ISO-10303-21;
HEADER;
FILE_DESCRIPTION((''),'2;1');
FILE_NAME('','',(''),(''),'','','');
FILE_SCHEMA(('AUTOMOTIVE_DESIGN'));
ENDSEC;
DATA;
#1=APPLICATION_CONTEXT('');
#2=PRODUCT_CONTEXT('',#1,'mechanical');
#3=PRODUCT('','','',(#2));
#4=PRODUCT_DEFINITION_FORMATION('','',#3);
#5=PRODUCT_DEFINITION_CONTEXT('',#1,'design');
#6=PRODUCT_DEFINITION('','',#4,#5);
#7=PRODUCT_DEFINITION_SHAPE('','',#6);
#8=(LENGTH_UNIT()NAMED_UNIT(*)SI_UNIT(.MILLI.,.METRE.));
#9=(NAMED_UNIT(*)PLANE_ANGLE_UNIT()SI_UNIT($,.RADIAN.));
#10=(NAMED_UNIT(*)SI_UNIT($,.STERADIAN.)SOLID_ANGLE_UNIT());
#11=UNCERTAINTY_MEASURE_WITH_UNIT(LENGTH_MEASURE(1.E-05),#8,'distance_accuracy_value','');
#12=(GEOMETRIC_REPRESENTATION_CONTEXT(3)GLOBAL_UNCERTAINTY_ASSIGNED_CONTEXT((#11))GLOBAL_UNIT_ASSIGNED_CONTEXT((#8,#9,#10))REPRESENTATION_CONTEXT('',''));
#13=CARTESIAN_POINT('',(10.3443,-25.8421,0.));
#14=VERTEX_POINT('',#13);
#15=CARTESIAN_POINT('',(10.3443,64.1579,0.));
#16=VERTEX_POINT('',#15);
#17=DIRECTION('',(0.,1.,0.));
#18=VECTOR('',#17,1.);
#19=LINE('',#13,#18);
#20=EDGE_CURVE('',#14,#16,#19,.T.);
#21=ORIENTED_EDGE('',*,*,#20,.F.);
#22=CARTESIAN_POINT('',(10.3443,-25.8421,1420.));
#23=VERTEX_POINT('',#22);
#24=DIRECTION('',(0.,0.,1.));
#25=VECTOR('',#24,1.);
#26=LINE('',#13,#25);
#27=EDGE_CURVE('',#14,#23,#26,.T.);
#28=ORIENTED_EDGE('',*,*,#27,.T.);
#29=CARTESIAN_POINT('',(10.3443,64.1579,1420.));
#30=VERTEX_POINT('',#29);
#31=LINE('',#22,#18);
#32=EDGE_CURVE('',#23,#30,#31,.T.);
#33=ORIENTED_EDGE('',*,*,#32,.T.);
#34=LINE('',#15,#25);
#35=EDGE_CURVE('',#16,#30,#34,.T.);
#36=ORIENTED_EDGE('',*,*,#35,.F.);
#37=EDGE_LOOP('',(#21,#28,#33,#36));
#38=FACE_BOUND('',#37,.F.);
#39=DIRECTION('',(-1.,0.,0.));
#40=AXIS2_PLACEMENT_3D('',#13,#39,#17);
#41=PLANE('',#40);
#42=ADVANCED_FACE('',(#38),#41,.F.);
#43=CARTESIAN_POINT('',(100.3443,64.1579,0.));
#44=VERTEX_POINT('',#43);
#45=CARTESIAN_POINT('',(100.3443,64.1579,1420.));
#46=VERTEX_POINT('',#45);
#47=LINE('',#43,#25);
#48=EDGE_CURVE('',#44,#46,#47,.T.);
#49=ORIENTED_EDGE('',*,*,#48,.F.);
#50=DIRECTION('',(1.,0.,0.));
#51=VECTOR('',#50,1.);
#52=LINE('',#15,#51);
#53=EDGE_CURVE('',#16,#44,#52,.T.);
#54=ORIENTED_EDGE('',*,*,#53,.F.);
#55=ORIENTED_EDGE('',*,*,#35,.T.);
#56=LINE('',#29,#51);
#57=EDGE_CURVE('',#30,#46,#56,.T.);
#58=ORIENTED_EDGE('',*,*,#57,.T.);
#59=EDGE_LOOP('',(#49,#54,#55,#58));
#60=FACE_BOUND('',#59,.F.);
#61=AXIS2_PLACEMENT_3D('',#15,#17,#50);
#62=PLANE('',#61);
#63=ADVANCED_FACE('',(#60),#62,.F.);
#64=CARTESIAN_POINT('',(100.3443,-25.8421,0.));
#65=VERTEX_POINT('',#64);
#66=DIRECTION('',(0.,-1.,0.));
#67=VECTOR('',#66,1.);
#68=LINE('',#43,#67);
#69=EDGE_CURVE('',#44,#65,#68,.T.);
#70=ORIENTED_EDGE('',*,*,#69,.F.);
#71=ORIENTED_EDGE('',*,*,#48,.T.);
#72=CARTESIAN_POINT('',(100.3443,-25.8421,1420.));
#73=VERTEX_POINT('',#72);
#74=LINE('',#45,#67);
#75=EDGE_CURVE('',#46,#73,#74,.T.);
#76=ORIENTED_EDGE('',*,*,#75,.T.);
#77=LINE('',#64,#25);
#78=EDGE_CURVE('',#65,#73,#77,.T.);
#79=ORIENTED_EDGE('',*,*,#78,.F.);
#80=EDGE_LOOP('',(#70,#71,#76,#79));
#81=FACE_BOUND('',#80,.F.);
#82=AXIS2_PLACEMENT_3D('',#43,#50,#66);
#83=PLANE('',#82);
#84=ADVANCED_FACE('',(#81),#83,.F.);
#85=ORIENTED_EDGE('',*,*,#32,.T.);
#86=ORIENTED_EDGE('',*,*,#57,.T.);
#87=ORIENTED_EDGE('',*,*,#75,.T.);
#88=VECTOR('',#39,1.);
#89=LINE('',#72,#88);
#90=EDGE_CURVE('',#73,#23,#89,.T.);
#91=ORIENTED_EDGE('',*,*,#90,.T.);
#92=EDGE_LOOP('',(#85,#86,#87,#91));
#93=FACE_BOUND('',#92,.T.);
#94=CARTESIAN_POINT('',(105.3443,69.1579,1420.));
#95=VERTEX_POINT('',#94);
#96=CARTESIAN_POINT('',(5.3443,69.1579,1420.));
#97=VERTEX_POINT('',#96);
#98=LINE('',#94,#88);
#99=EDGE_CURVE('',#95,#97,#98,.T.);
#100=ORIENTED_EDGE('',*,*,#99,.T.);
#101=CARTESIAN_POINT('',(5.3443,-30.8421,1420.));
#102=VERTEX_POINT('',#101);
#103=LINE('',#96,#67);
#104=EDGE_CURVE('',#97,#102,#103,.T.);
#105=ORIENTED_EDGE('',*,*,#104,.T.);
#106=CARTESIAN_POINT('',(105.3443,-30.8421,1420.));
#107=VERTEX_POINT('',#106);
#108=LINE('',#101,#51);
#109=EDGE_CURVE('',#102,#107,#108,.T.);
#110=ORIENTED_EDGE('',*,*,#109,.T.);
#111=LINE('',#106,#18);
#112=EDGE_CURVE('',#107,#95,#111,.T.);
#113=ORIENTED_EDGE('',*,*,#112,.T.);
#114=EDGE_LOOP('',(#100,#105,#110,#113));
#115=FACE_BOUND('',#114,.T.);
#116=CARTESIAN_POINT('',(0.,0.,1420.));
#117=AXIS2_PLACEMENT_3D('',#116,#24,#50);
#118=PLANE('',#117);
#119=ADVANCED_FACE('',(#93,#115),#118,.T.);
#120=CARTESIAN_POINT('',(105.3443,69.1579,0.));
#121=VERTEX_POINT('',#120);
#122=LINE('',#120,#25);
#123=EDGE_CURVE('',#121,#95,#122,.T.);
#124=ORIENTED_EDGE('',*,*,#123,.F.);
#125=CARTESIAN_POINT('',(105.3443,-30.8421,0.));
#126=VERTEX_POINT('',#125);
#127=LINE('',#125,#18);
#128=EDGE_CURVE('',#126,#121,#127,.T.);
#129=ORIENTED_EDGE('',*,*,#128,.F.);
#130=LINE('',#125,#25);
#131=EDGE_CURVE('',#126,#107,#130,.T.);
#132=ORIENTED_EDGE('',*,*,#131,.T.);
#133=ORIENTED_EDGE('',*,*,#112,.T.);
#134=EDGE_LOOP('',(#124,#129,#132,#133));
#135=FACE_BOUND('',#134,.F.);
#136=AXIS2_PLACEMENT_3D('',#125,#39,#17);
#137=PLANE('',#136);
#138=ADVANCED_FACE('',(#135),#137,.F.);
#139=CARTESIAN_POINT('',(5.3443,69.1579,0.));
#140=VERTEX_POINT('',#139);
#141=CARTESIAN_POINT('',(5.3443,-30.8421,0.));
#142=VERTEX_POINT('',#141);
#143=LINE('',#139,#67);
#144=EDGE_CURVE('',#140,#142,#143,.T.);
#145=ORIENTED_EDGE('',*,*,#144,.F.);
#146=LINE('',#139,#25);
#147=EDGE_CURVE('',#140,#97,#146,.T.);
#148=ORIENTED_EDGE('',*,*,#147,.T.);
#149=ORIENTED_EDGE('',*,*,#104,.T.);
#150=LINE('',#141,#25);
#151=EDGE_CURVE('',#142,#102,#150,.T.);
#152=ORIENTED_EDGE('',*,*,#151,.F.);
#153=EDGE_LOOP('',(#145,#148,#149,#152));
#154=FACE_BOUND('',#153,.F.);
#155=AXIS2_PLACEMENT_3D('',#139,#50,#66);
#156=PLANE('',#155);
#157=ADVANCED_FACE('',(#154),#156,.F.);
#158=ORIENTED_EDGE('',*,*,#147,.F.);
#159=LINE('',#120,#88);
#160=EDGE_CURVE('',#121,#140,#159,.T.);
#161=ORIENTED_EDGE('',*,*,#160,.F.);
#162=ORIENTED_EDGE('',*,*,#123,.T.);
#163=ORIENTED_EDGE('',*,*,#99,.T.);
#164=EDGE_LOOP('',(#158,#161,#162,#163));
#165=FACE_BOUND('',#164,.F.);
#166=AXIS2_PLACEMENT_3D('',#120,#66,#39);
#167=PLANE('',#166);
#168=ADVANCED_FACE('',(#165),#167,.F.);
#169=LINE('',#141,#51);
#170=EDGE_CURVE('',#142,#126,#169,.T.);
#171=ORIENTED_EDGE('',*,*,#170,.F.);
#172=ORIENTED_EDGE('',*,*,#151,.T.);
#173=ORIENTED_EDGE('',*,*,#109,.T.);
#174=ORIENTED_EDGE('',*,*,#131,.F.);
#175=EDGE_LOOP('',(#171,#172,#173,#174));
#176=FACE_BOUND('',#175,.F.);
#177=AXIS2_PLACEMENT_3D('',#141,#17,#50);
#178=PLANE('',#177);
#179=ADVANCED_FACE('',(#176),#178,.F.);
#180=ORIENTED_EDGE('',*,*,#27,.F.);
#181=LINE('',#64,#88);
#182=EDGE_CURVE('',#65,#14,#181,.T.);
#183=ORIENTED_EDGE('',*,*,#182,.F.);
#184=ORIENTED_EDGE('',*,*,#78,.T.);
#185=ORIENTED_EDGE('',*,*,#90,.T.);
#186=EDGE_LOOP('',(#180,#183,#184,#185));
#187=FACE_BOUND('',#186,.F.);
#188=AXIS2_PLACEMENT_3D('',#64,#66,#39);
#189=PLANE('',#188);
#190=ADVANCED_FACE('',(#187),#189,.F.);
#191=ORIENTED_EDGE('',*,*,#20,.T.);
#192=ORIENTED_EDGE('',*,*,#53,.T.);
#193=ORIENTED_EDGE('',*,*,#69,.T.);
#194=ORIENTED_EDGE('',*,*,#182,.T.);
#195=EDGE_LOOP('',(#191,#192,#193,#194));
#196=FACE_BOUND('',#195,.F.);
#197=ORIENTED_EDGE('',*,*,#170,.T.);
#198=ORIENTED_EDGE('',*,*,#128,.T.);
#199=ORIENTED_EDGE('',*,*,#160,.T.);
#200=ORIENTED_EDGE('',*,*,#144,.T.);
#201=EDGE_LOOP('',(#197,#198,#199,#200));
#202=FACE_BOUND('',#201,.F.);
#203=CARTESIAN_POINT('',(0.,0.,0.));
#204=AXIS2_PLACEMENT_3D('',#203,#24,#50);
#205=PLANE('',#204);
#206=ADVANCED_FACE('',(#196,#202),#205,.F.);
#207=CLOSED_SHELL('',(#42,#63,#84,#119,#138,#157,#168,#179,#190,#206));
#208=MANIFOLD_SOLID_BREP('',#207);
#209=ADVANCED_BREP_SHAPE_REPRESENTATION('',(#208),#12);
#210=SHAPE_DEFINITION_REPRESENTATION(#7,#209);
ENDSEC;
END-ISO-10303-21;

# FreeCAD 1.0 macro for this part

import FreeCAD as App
import Part
import Sketcher

V = App.Vector
Q = App.Units.Quantity

doc = App.newDocument("Part")
body = doc.addObject("PartDesign::Body", "Body")

sketch1 = body.newObject("Sketcher::SketchObject", "Sketch")
sketch1.AttachmentSupport = (doc.getObject("XY_Plane"), [""])
sketch1.MapMode = "FlatFace"
sketch1.addGeometry([
    Part.LineSegment(V(5, 69, 0), V(5, -31, 0)),
    Part.LineSegment(V(5, -31, 0), V(105, -31, 0)),
    Part.LineSegment(V(105, -31, 0), V(105, 69, 0)),
    Part.LineSegment(V(105, 69, 0), V(5, 69, 0)),
    Part.LineSegment(V(10, -26, 0), V(10, 64, 0)),
    Part.LineSegment(V(10, 64, 0), V(100, 64, 0)),
    Part.LineSegment(V(100, 64, 0), V(100, -26, 0)),
    Part.LineSegment(V(100, -26, 0), V(10, -26, 0)),
], False)
sketch1.addConstraint([
    Sketcher.Constraint("Coincident", 0, 2, 1, 1),
    Sketcher.Constraint("Coincident", 1, 2, 2, 1),
    Sketcher.Constraint("Coincident", 2, 2, 3, 1),
    Sketcher.Constraint("Coincident", 3, 2, 0, 1),
    Sketcher.Constraint("Coincident", 4, 2, 5, 1),
    Sketcher.Constraint("Coincident", 5, 2, 6, 1),
    Sketcher.Constraint("Coincident", 6, 2, 7, 1),
    Sketcher.Constraint("Coincident", 7, 2, 4, 1),
    Sketcher.Constraint("Vertical", 0),
    Sketcher.Constraint("Horizontal", 1),
    Sketcher.Constraint("Vertical", 2),
    Sketcher.Constraint("Horizontal", 3),
    Sketcher.Constraint("Vertical", 4),
    Sketcher.Constraint("Horizontal", 5),
    Sketcher.Constraint("Vertical", 6),
    Sketcher.Constraint("Horizontal", 7),
    Sketcher.Constraint("Equal", 3, 0),
    Sketcher.Constraint("Equal", 7, 4),
    Sketcher.Constraint("DistanceX", 1, 1, 1, 2, Q("3.937 in")),
    Sketcher.Constraint("DistanceX", 3, 2, 4, 2, 5.0),
    Sketcher.Constraint("DistanceY", 4, 2, 3, 2, 5.0),
    Sketcher.Constraint("DistanceX", 5, 2, 2, 2, 5.0),
    Sketcher.Constraint("DistanceX", -1, 1, 0, 2, Q("0.2104 in")),
    Sketcher.Constraint("DistanceY", -1, 1, 4, 2, Q("2.5259 in")),
])
pad1 = body.newObject("PartDesign::Pad", "Pad")
pad1.Profile = sketch1
pad1.Length = Q("55.9055118 in")

doc.recompute()
